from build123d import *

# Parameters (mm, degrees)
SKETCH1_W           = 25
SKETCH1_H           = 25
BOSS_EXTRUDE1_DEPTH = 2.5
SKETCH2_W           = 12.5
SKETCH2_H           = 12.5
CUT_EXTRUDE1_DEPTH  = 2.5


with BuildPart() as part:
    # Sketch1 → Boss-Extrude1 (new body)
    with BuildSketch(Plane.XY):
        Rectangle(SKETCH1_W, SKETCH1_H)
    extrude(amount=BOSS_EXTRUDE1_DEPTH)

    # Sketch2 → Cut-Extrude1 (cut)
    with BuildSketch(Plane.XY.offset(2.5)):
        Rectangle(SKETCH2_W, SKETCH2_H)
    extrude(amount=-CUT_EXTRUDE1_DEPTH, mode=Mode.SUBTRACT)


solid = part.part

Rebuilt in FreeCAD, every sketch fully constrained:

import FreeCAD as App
import Part
import Sketcher
Q = App.Units.Quantity


def add_polygon(sketch, points):
    """Adds a closed chain of lines whose ends are joined by coincident constraints."""
    first, n = sketch.GeometryCount, len(points)
    for a, b in zip(points, points[1:] + points[:1]):
        sketch.addGeometry(Part.LineSegment(App.Vector(*a, 0), App.Vector(*b, 0)), False)
    for i in range(n):
        sketch.addConstraint(Sketcher.Constraint("Coincident", first + i, 2, first + (i + 1) % n, 1))

doc = App.newDocument("Part")
params = doc.addObject("Spreadsheet::Sheet", "Params")
for row, (alias, value) in enumerate([
    ("sketch1_width", "25 mm"),
    ("pad1_length", "2.5 mm"),
    ("sketch2_width", "12.5 mm"),
    ("pocket1_length", "2.5 mm"),
], start=1):
    params.set(f"A{row}", alias)
    params.set(f"B{row}", "=" + value)
    params.setAlias(f"B{row}", alias)

body = doc.addObject("PartDesign::Body", "Body")

# Sketch on XY plane
sketch1 = doc.addObject("Sketcher::SketchObject", "Sketch")
body.addObject(sketch1)
sketch1.AttachmentSupport = (doc.XY_Plane, [""])
sketch1.MapMode = "FlatFace"
add_polygon(sketch1, [(-12, 12), (-12, -12), (12, -12), (12, 12)])  # lines 0-3
sketch1.addConstraint(Sketcher.Constraint("Vertical", 0))
sketch1.addConstraint(Sketcher.Constraint("Horizontal", 1))
sketch1.addConstraint(Sketcher.Constraint("Vertical", 2))
sketch1.addConstraint(Sketcher.Constraint("Horizontal", 3))
sketch1.addConstraint(Sketcher.Constraint("Symmetric", 0, 2, 2, 2, -1, 1))
sketch1.addConstraint(Sketcher.Constraint("Equal", 3, 0))
sketch1.addConstraint(Sketcher.Constraint("DistanceX", 1, 1, 1, 2, Q("25 mm")))
sketch1.setExpression("Constraints[10]", "Params.sketch1_width")
pad1 = doc.addObject("PartDesign::Pad", "Pad")
body.addObject(pad1)
pad1.Profile = sketch1
pad1.setExpression("Length", "Params.pad1_length")

# Sketch on XY plane
sketch2 = doc.addObject("Sketcher::SketchObject", "Sketch001")
body.addObject(sketch2)
sketch2.AttachmentSupport = (doc.XY_Plane, [""])
sketch2.MapMode = "FlatFace"
sketch2.AttachmentOffset = App.Placement(App.Vector(0, 0, 2.5), App.Rotation())
add_polygon(sketch2, [(-6, 6), (-6, -6), (6, -6), (6, 6)])  # lines 0-3
sketch2.addConstraint(Sketcher.Constraint("Vertical", 0))
sketch2.addConstraint(Sketcher.Constraint("Horizontal", 1))
sketch2.addConstraint(Sketcher.Constraint("Vertical", 2))
sketch2.addConstraint(Sketcher.Constraint("Horizontal", 3))
sketch2.addConstraint(Sketcher.Constraint("Symmetric", 0, 2, 2, 2, -1, 1))
sketch2.addConstraint(Sketcher.Constraint("Equal", 3, 0))
sketch2.addConstraint(Sketcher.Constraint("DistanceX", 1, 1, 1, 2, Q("12.5 mm")))
sketch2.setExpression("Constraints[10]", "Params.sketch2_width")
pocket1 = doc.addObject("PartDesign::Pocket", "Pocket")
body.addObject(pocket1)
pocket1.Profile = sketch2
pocket1.setExpression("Length", "Params.pocket1_length")

doc.recompute()
